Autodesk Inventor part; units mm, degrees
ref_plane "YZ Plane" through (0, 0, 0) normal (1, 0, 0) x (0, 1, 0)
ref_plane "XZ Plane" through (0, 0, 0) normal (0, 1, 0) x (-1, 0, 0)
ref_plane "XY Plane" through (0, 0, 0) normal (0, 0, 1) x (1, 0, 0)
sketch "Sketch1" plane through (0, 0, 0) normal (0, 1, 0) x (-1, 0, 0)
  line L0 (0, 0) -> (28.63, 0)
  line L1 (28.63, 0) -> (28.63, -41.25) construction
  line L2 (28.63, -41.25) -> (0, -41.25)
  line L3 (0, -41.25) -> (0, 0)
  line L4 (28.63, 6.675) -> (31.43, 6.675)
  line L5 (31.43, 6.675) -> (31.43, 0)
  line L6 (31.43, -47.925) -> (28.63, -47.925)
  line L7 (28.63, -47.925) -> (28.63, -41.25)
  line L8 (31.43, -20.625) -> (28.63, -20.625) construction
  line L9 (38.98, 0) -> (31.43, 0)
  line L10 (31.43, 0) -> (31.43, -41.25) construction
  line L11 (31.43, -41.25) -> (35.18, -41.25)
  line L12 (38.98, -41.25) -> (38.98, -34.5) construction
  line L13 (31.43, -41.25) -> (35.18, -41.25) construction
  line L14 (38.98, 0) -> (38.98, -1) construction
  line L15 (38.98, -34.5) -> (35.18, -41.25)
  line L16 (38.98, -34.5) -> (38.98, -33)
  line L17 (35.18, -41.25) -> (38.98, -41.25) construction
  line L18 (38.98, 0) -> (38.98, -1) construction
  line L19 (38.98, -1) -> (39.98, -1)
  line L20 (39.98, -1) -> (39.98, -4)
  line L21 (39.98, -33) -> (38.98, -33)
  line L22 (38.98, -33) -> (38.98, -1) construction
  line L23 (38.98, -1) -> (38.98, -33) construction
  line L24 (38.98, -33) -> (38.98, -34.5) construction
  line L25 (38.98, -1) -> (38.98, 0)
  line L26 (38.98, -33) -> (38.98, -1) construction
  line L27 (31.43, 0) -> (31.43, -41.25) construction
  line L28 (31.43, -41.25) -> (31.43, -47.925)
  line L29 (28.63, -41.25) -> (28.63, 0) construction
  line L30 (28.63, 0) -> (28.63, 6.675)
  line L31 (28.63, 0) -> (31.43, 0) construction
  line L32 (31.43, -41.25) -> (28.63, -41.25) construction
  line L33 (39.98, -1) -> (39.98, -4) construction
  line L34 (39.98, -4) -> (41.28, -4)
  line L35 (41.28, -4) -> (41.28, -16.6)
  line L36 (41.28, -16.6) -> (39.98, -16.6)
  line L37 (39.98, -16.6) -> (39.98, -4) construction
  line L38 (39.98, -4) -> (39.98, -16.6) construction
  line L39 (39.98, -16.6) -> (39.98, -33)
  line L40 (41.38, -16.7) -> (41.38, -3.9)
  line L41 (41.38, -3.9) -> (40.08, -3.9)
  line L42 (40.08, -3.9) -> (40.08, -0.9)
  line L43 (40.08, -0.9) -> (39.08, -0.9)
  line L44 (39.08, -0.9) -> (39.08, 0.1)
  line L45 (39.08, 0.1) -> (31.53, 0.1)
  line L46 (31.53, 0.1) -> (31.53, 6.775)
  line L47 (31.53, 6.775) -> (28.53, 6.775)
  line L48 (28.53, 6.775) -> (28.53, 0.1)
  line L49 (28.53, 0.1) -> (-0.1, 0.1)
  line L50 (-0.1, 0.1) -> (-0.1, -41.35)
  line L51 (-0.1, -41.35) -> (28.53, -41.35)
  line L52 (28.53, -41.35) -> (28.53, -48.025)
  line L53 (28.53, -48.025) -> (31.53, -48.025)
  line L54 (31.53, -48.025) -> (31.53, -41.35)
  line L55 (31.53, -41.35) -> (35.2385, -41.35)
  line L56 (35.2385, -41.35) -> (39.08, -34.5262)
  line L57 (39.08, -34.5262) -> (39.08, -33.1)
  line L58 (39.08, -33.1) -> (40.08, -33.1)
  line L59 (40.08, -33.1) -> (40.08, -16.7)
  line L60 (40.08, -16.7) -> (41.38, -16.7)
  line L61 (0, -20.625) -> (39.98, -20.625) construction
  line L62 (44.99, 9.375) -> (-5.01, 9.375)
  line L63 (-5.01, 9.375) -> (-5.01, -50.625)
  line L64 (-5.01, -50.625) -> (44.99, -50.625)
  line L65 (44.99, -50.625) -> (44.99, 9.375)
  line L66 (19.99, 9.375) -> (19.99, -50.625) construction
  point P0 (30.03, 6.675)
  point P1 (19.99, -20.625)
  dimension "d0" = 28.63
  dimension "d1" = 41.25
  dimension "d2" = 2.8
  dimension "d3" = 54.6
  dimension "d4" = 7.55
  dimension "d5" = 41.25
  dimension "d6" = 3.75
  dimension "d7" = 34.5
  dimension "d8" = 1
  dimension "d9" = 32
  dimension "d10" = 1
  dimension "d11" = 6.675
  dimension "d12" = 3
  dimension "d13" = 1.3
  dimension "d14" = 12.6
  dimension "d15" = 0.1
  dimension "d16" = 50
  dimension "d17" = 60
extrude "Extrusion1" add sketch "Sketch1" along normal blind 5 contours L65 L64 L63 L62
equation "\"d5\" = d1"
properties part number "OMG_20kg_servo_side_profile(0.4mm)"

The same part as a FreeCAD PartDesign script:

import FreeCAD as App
import Part
import Sketcher
Q = App.Units.Quantity


def add_polygon(sketch, points):
    """Adds a closed chain of lines whose ends are joined by coincident constraints."""
    first, n = sketch.GeometryCount, len(points)
    for a, b in zip(points, points[1:] + points[:1]):
        sketch.addGeometry(Part.LineSegment(App.Vector(*a, 0), App.Vector(*b, 0)), False)
    for i in range(n):
        sketch.addConstraint(Sketcher.Constraint("Coincident", first + i, 2, first + (i + 1) % n, 1))

doc = App.newDocument("Part")
params = doc.addObject("Spreadsheet::Sheet", "Params")
for row, (alias, value) in enumerate([
    ("sketch1_width", "50 mm"),
    ("sketch1_width2", "1 mm"),
    ("sketch1_width3", "3 mm"),
    ("sketch1_height", "60 mm"),
    ("sketch1_width4", "1.3 mm"),
    ("pad1_length", "5 mm"),
], start=1):
    params.set(f"A{row}", alias)
    params.set(f"B{row}", "=" + value)
    params.setAlias(f"B{row}", alias)

body = doc.addObject("PartDesign::Body", "Body")

sketch1 = body.newObject("Sketcher::SketchObject", "Sketch")
sketch1.AttachmentSupport = (doc.getObject("XZ_Plane"), [""])
sketch1.MapMode = "FlatFace"
add_polygon(sketch1, [(-45, -50.6), (-45, 9.4), (5, 9.4), (5, -50.6)])
add_polygon(sketch1, [(-41.4, -3.9), (-41.4, -16.7), (-40.1, -16.7), (-40.1, -33.1), (-39.1, -33.1), (-39.1, -34.5), (-35.2, -41.4), (-31.5, -41.4), (-31.5, -48), (-28.5, -48), (-28.5, -41.4), (0.1, -41.4), (0.1, 0.1), (-28.5, 0.1), (-28.5, 6.8), (-31.5, 6.8), (-31.5, 0.1), (-39.1, 0.1), (-39.1, -0.9), (-40.1, -0.9), (-40.1, -3.9)])
sketch1.addConstraint([
    Sketcher.Constraint("Vertical", 0),
    Sketcher.Constraint("Horizontal", 1),
    Sketcher.Constraint("Vertical", 2),
    Sketcher.Constraint("Horizontal", 3),
    Sketcher.Constraint("Vertical", 4),
    Sketcher.Constraint("Horizontal", 5),
    Sketcher.Constraint("Vertical", 6),
    Sketcher.Constraint("Horizontal", 7),
    Sketcher.Constraint("Vertical", 8),
    Sketcher.Constraint("Horizontal", 10),
    Sketcher.Constraint("Vertical", 11),
    Sketcher.Constraint("Horizontal", 12),
    Sketcher.Constraint("Vertical", 13),
    Sketcher.Constraint("Horizontal", 14),
    Sketcher.Constraint("Vertical", 15),
    Sketcher.Constraint("Horizontal", 16),
    Sketcher.Constraint("Vertical", 17),
    Sketcher.Constraint("Horizontal", 18),
    Sketcher.Constraint("Vertical", 19),
    Sketcher.Constraint("Horizontal", 20),
    Sketcher.Constraint("Vertical", 21),
    Sketcher.Constraint("Horizontal", 22),
    Sketcher.Constraint("Vertical", 23),
    Sketcher.Constraint("Horizontal", 24),
    Sketcher.Constraint("Horizontal", 10, 2, 13, 2),
    Sketcher.Constraint("Horizontal", 16, 2, 19, 2),
    Sketcher.Constraint("Vertical", 13, 2, 16, 2),
    Sketcher.Constraint("Vertical", 11, 2, 18, 2),
    Sketcher.Constraint("Vertical", 8, 2, 20, 2),
    Sketcher.Constraint("Vertical", 6, 2, 22, 2),
    Sketcher.Constraint("Equal", 13, 17),
    Sketcher.Constraint("Equal", 22, 21),
    Sketcher.Constraint("Equal", 18, 23),
    Sketcher.Constraint("DistanceX", 1, 1, 1, 2, Q("50 mm")),
    Sketcher.Constraint("DistanceX", 7, 1, 7, 2, Q("1 mm")),
    Sketcher.Constraint("DistanceX", 12, 1, 12, 2, Q("3 mm")),
    Sketcher.Constraint("DistanceY", 0, 1, 0, 2, Q("60 mm")),
    Sketcher.Constraint("DistanceX", 5, 1, 5, 2, Q("1.3 mm")),
    Sketcher.Constraint("DistanceX", 14, 1, 14, 2, Q("28.63 mm")),
    Sketcher.Constraint("DistanceX", 20, 2, 20, 1, Q("7.55 mm")),
    Sketcher.Constraint("DistanceX", -1, 1, 14, 2, Q("0.1 mm")),
    Sketcher.Constraint("DistanceY", -1, 1, 15, 2, Q("0.1 mm")),
    Sketcher.Constraint("DistanceY", 11, 2, 11, 1, Q("6.675 mm")),
    Sketcher.Constraint("DistanceY", 4, 2, 4, 1, Q("12.8 mm")),
    Sketcher.Constraint("DistanceY", 6, 2, 6, 1, Q("16.4 mm")),
    Sketcher.Constraint("DistanceY", 15, 1, 15, 2, Q("41.45 mm")),
    Sketcher.Constraint("DistanceY", 3, 2, 11, 2, Q("2.6 mm")),
    Sketcher.Constraint("DistanceX", 0, 2, -1, 1, Q("44.99 mm")),
    Sketcher.Constraint("DistanceX", 10, 1, 10, 2, Q("3.7085 mm")),
    Sketcher.Constraint("DistanceY", 8, 2, 8, 1, Q("1.4262 mm")),
])
sketch1.setExpression("Constraints[58]", "Params.sketch1_width")
sketch1.setExpression("Constraints[59]", "Params.sketch1_width2")
sketch1.setExpression("Constraints[60]", "Params.sketch1_width3")
sketch1.setExpression("Constraints[61]", "Params.sketch1_height")
sketch1.setExpression("Constraints[62]", "Params.sketch1_width4")
pad1 = body.newObject("PartDesign::Pad", "Pad")
pad1.Profile = sketch1
pad1.setExpression("Length", "Params.pad1_length")
pad1.Reversed = True

doc.recompute()
